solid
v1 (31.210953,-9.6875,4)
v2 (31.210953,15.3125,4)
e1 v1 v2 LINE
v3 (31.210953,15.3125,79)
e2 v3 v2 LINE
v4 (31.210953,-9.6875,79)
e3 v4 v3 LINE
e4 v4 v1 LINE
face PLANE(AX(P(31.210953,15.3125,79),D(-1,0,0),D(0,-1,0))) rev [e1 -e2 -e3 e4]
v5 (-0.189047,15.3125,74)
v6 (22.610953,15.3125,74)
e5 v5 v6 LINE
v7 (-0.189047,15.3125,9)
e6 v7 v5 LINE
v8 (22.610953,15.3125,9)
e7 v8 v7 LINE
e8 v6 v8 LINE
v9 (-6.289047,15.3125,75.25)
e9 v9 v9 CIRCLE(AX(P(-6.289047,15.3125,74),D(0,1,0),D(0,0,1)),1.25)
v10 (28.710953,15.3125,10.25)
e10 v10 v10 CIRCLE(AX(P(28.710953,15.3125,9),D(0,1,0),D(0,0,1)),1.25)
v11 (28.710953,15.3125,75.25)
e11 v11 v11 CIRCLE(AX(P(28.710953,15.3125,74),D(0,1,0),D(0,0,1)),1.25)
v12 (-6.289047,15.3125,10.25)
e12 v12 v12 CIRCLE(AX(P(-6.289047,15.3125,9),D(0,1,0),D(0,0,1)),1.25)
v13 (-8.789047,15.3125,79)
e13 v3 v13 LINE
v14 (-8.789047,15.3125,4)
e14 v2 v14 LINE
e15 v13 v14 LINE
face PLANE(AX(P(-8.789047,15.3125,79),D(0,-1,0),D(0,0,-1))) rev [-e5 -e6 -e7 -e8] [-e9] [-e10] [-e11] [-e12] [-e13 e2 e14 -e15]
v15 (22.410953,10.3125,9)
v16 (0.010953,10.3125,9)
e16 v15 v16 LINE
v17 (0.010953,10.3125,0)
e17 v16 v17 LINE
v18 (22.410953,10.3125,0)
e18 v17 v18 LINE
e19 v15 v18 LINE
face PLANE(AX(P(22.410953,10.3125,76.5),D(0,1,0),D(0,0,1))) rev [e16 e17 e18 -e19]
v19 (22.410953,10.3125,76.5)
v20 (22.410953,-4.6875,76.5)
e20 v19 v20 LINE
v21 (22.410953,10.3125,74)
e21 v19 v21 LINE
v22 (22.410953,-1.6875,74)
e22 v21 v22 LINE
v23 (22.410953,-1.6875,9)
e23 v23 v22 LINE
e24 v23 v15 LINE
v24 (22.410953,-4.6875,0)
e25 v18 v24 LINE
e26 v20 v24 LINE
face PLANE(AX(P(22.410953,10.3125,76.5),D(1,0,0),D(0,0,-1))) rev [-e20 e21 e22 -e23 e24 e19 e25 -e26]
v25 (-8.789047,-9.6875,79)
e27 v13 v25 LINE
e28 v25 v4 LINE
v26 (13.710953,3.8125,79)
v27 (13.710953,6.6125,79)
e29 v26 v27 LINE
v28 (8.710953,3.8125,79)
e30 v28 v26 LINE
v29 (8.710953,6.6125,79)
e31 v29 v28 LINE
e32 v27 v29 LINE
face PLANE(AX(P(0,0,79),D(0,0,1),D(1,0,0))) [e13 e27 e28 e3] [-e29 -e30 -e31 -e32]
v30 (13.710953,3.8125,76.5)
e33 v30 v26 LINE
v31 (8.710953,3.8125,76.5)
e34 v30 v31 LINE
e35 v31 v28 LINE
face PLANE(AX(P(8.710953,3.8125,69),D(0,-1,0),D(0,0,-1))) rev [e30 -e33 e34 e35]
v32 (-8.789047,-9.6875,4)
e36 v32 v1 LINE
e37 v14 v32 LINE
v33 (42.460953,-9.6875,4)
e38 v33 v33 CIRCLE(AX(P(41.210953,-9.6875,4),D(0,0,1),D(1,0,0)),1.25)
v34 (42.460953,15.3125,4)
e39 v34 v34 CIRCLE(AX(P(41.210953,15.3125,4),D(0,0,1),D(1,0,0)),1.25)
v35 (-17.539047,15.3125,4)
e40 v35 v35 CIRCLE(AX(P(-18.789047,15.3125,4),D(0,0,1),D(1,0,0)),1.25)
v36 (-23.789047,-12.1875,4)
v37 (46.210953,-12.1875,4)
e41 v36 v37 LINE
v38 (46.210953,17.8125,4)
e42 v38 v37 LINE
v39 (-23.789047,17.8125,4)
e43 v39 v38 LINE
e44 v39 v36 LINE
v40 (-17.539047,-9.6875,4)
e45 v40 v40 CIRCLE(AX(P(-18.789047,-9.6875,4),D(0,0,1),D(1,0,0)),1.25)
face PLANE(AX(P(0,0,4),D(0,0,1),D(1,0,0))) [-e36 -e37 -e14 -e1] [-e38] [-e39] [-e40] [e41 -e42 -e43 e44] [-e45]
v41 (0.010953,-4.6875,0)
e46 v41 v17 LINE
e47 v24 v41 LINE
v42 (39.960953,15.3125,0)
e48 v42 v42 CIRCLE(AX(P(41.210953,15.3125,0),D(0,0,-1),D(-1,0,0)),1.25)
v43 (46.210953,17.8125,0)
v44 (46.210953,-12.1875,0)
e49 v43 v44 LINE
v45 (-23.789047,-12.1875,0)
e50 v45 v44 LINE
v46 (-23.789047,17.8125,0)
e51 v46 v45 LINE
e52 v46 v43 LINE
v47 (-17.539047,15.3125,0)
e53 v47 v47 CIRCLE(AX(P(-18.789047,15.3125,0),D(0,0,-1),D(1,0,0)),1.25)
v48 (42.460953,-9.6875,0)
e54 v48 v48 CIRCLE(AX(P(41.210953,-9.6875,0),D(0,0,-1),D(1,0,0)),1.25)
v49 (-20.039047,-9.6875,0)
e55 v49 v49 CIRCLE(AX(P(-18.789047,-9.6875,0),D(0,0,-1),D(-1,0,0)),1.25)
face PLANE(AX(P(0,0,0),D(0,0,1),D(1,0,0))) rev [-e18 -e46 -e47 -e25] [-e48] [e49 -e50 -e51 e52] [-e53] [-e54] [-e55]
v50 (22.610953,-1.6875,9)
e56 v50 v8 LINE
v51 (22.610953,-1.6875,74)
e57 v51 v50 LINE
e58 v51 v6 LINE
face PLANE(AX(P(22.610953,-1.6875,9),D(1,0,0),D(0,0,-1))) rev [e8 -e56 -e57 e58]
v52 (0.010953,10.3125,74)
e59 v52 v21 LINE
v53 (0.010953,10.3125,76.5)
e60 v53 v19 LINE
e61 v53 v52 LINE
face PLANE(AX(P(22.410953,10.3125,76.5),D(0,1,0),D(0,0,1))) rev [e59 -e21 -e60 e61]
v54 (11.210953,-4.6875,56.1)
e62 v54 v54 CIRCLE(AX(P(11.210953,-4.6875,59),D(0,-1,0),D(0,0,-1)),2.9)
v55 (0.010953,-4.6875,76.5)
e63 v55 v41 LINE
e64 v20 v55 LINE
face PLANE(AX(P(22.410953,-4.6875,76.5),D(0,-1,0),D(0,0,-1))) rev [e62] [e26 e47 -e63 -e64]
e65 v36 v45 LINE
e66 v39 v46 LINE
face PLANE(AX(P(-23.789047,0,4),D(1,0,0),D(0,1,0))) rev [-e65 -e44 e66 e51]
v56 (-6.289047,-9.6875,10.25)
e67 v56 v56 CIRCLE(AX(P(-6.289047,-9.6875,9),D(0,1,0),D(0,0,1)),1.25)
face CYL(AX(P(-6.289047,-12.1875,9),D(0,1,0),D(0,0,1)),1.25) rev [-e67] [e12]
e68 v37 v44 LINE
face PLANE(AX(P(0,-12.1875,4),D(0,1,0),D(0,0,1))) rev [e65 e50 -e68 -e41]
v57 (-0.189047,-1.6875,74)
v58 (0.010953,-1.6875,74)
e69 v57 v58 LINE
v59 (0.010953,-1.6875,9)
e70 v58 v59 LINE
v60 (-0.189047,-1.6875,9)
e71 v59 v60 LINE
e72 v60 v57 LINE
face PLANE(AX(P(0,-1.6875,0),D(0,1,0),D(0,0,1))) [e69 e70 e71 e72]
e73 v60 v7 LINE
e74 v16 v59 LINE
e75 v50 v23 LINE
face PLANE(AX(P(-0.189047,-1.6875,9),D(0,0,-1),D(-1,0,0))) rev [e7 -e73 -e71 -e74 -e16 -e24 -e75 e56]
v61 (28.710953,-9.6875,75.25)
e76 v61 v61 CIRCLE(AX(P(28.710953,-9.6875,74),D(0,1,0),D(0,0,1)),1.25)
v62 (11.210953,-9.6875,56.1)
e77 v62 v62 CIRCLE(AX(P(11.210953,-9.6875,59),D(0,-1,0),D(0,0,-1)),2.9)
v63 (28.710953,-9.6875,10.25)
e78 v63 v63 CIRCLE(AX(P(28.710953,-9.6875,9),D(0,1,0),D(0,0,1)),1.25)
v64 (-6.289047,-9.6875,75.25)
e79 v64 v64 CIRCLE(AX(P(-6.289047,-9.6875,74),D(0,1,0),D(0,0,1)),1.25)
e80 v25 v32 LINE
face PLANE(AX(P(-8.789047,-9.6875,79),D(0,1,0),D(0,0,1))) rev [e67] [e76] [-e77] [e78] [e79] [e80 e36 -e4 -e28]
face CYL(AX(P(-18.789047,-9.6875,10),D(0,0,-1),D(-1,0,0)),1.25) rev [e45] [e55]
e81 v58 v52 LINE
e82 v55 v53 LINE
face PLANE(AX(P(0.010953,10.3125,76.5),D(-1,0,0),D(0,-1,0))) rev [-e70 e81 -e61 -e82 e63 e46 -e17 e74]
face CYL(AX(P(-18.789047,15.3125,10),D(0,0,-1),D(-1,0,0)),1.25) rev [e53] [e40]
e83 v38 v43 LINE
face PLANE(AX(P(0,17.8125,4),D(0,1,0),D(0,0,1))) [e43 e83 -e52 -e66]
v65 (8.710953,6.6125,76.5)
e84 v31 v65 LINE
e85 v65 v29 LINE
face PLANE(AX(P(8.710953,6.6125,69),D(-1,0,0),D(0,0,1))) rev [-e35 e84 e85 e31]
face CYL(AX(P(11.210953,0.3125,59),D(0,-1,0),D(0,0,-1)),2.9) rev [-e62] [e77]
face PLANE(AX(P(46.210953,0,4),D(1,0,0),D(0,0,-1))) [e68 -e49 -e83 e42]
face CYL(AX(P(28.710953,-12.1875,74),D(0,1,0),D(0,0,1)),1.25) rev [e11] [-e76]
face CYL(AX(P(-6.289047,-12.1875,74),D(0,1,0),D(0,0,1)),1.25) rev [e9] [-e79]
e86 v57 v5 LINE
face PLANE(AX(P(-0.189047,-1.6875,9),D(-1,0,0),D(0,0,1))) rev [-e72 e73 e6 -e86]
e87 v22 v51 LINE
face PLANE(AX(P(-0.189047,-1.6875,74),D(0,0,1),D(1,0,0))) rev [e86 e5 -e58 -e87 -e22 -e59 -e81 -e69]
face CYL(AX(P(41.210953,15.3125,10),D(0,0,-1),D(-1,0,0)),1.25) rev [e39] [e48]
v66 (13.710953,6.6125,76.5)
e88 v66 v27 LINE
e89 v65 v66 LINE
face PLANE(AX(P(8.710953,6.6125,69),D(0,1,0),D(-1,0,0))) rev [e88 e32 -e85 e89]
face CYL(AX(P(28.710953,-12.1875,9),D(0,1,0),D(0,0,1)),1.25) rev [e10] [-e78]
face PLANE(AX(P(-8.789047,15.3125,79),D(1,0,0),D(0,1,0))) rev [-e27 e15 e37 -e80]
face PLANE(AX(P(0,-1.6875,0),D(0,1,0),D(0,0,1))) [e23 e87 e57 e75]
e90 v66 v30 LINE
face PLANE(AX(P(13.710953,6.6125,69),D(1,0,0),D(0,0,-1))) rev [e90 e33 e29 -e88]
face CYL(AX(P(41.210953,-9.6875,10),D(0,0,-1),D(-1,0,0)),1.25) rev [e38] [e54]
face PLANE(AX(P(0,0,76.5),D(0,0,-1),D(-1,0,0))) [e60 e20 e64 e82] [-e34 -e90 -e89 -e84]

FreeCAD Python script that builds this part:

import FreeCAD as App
import Part
import Sketcher

V = App.Vector
Q = App.Units.Quantity

doc = App.newDocument("Part")
body = doc.addObject("PartDesign::Body", "Body")

# Sketch on XY plane
sketch1 = body.newObject("Sketcher::SketchObject", "Sketch")
sketch1.AttachmentSupport = (doc.getObject("XY_Plane"), [""])
sketch1.MapMode = "FlatFace"
sketch1.addGeometry([
    Part.LineSegment(V(-24, 18, 0), V(-24, -12, 0)),
    Part.LineSegment(V(-24, -12, 0), V(46, -12, 0)),
    Part.LineSegment(V(46, -12, 0), V(46, 18, 0)),
    Part.LineSegment(V(46, 18, 0), V(-24, 18, 0)),
], False)
sketch1.addConstraint([
    Sketcher.Constraint("Coincident", 0, 2, 1, 1),
    Sketcher.Constraint("Coincident", 1, 2, 2, 1),
    Sketcher.Constraint("Coincident", 2, 2, 3, 1),
    Sketcher.Constraint("Coincident", 3, 2, 0, 1),
    Sketcher.Constraint("Vertical", 0),
    Sketcher.Constraint("Horizontal", 1),
    Sketcher.Constraint("Vertical", 2),
    Sketcher.Constraint("Horizontal", 3),
    Sketcher.Constraint("DistanceX", 1, 1, 1, 2, Q("70 mm")),
    Sketcher.Constraint("DistanceY", 0, 2, 0, 1, Q("30 mm")),
    Sketcher.Constraint("DistanceY", 0, 2, -1, 1, Q("12.1875 mm")),
    Sketcher.Constraint("DistanceX", 0, 2, -1, 1, Q("23.789047 mm")),
])
pad1 = body.newObject("PartDesign::Pad", "Pad")
pad1.Profile = sketch1
pad1.Length = 4

# Sketch on XY plane
sketch2 = body.newObject("Sketcher::SketchObject", "Sketch001")
sketch2.AttachmentSupport = (doc.getObject("XY_Plane"), [""])
sketch2.MapMode = "FlatFace"
sketch2.AttachmentOffset = App.Placement(V(0, 0, 4), App.Rotation())
sketch2.addGeometry([
    Part.LineSegment(V(-9, 15, 0), V(-9, -10, 0)),
    Part.LineSegment(V(-9, -10, 0), V(31, -10, 0)),
    Part.LineSegment(V(31, -10, 0), V(31, 15, 0)),
    Part.LineSegment(V(31, 15, 0), V(-9, 15, 0)),
], False)
sketch2.addConstraint([
    Sketcher.Constraint("Coincident", 0, 2, 1, 1),
    Sketcher.Constraint("Coincident", 1, 2, 2, 1),
    Sketcher.Constraint("Coincident", 2, 2, 3, 1),
    Sketcher.Constraint("Coincident", 3, 2, 0, 1),
    Sketcher.Constraint("Vertical", 0),
    Sketcher.Constraint("Horizontal", 1),
    Sketcher.Constraint("Vertical", 2),
    Sketcher.Constraint("Horizontal", 3),
    Sketcher.Constraint("DistanceX", 1, 1, 1, 2, Q("40 mm")),
    Sketcher.Constraint("DistanceY", 0, 2, 0, 1, Q("25 mm")),
    Sketcher.Constraint("DistanceY", 0, 2, -1, 1, Q("9.6875 mm")),
    Sketcher.Constraint("DistanceX", 0, 2, -1, 1, Q("8.789047 mm")),
])
pad2 = body.newObject("PartDesign::Pad", "Pad001")
pad2.Profile = sketch2
pad2.Length = 75

# Sketch on XY plane
sketch3 = body.newObject("Sketcher::SketchObject", "Sketch002")
sketch3.AttachmentSupport = (doc.getObject("XY_Plane"), [""])
sketch3.MapMode = "FlatFace"
sketch3.addGeometry([
    Part.LineSegment(V(22, 10, 0), V(22, -5, 0)),
    Part.LineSegment(V(22, -5, 0), V(0, -5, 0)),
    Part.LineSegment(V(0, -5, 0), V(0, 10, 0)),
    Part.LineSegment(V(0, 10, 0), V(22, 10, 0)),
], False)
sketch3.addConstraint([
    Sketcher.Constraint("Coincident", 0, 2, 1, 1),
    Sketcher.Constraint("Coincident", 1, 2, 2, 1),
    Sketcher.Constraint("Coincident", 2, 2, 3, 1),
    Sketcher.Constraint("Coincident", 3, 2, 0, 1),
    Sketcher.Constraint("Vertical", 0),
    Sketcher.Constraint("Horizontal", 1),
    Sketcher.Constraint("Vertical", 2),
    Sketcher.Constraint("Horizontal", 3),
    Sketcher.Constraint("DistanceY", 0, 2, 0, 1, Q("15 mm")),
    Sketcher.Constraint("DistanceX", 1, 2, 1, 1, Q("22.4 mm")),
    Sketcher.Constraint("DistanceY", 0, 2, -1, 1, Q("4.6875 mm")),
    Sketcher.Constraint("DistanceX", -1, 1, 0, 2, Q("22.410953 mm")),
])
pocket1 = body.newObject("PartDesign::Pocket", "Pocket")
pocket1.Profile = sketch3
pocket1.Length = 76.5
pocket1.Reversed = True

# Sketch on XZ plane
sketch4 = body.newObject("Sketcher::SketchObject", "Sketch003")
sketch4.AttachmentSupport = (doc.getObject("XZ_Plane"), [""])
sketch4.MapMode = "FlatFace"
sketch4.AttachmentOffset = App.Placement(V(0, 0, -15.3125), App.Rotation())
sketch4.addGeometry([
    Part.LineSegment(V(0, 9, 0), V(0, 74, 0)),
    Part.LineSegment(V(0, 74, 0), V(23, 74, 0)),
    Part.LineSegment(V(23, 74, 0), V(23, 9, 0)),
    Part.LineSegment(V(23, 9, 0), V(0, 9, 0)),
], False)
sketch4.addConstraint([
    Sketcher.Constraint("Coincident", 0, 2, 1, 1),
    Sketcher.Constraint("Coincident", 1, 2, 2, 1),
    Sketcher.Constraint("Coincident", 2, 2, 3, 1),
    Sketcher.Constraint("Coincident", 3, 2, 0, 1),
    Sketcher.Constraint("Vertical", 0),
    Sketcher.Constraint("Horizontal", 1),
    Sketcher.Constraint("Vertical", 2),
    Sketcher.Constraint("Horizontal", 3),
    Sketcher.Constraint("DistanceY", 0, 1, 0, 2, Q("65 mm")),
    Sketcher.Constraint("DistanceX", 1, 1, 1, 2, Q("22.8 mm")),
    Sketcher.Constraint("DistanceY", -1, 1, 0, 2, Q("74 mm")),
    Sketcher.Constraint("DistanceX", 0, 2, -1, 1, Q("0.189047 mm")),
])
pocket2 = body.newObject("PartDesign::Pocket", "Pocket001")
pocket2.Profile = sketch4
pocket2.Length = 17
pocket2.Reversed = True

# Sketch on XZ plane
sketch5 = body.newObject("Sketcher::SketchObject", "Sketch004")
sketch5.AttachmentSupport = (doc.getObject("XZ_Plane"), [""])
sketch5.MapMode = "FlatFace"
sketch5.AttachmentOffset = App.Placement(V(0, 0, -15.3125), App.Rotation())
sketch5.addGeometry([
    Part.Circle(V(-6.3, 9, 0), V(0, 0, 1), 1.2),
    Part.Circle(V(28.7, 9, 0), V(0, 0, 1), 1.2),
    Part.Circle(V(-6.3, 74, 0), V(0, 0, 1), 1.2),
    Part.Circle(V(28.7, 74, 0), V(0, 0, 1), 1.2),
], False)
sketch5.addConstraint([
    Sketcher.Constraint("Equal", 0, 1),
    Sketcher.Constraint("Equal", 1, 2),
    Sketcher.Constraint("Equal", 2, 3),
    Sketcher.Constraint("Horizontal", 0, 3, 1, 3),
    Sketcher.Constraint("Horizontal", 2, 3, 3, 3),
    Sketcher.Constraint("Vertical", 0, 3, 2, 3),
    Sketcher.Constraint("Vertical", 1, 3, 3, 3),
    Sketcher.Constraint("Diameter", 0, Q("2.5 mm")),
    Sketcher.Constraint("DistanceY", -1, 1, 0, 3, Q("9 mm")),
    Sketcher.Constraint("DistanceY", -1, 1, 2, 3, Q("74 mm")),
    Sketcher.Constraint("DistanceX", 0, 3, 1, 3, Q("35 mm")),
    Sketcher.Constraint("DistanceX", 0, 3, -1, 1, Q("6.289047 mm")),
])
pocket3 = body.newObject("PartDesign::Pocket", "Pocket002")
pocket3.Profile = sketch5
pocket3.Type = "ThroughAll"
pocket3.Reversed = True

# Sketch on XZ plane
sketch6 = body.newObject("Sketcher::SketchObject", "Sketch005")
sketch6.AttachmentSupport = (doc.getObject("XZ_Plane"), [""])
sketch6.MapMode = "FlatFace"
sketch6.AttachmentOffset = App.Placement(V(0, 0, 9.6875), App.Rotation())
sketch6.addGeometry(Part.Circle(V(11.2, 59, 0), V(0, 0, 1), 2.9), False)
sketch6.addConstraint([
    Sketcher.Constraint("Diameter", 0, Q("5.8 mm")),
    Sketcher.Constraint("DistanceY", -1, 1, 0, 3, Q("59 mm")),
    Sketcher.Constraint("DistanceX", -1, 1, 0, 3, Q("11.210953 mm")),
])
pocket4 = body.newObject("PartDesign::Pocket", "Pocket003")
pocket4.Profile = sketch6
pocket4.Length = 10

# Sketch on XY plane
sketch7 = body.newObject("Sketcher::SketchObject", "Sketch006")
sketch7.AttachmentSupport = (doc.getObject("XY_Plane"), [""])
sketch7.MapMode = "FlatFace"
sketch7.AttachmentOffset = App.Placement(V(0, 0, 79), App.Rotation())
sketch7.addGeometry([
    Part.LineSegment(V(8.7, 6.6, 0), V(8.7, 3.8, 0)),
    Part.LineSegment(V(8.7, 3.8, 0), V(13.7, 3.8, 0)),
    Part.LineSegment(V(13.7, 3.8, 0), V(13.7, 6.6, 0)),
    Part.LineSegment(V(13.7, 6.6, 0), V(8.7, 6.6, 0)),
], False)
sketch7.addConstraint([
    Sketcher.Constraint("Coincident", 0, 2, 1, 1),
    Sketcher.Constraint("Coincident", 1, 2, 2, 1),
    Sketcher.Constraint("Coincident", 2, 2, 3, 1),
    Sketcher.Constraint("Coincident", 3, 2, 0, 1),
    Sketcher.Constraint("Vertical", 0),
    Sketcher.Constraint("Horizontal", 1),
    Sketcher.Constraint("Vertical", 2),
    Sketcher.Constraint("Horizontal", 3),
    Sketcher.Constraint("DistanceX", 1, 1, 1, 2, Q("5 mm")),
    Sketcher.Constraint("DistanceY", 0, 2, 0, 1, Q("2.8 mm")),
    Sketcher.Constraint("DistanceY", -1, 1, 0, 2, Q("3.8125 mm")),
    Sketcher.Constraint("DistanceX", -1, 1, 0, 2, Q("8.710953 mm")),
])
pocket5 = body.newObject("PartDesign::Pocket", "Pocket004")
pocket5.Profile = sketch7
pocket5.Length = 10

# Sketch on XY plane
sketch8 = body.newObject("Sketcher::SketchObject", "Sketch007")
sketch8.AttachmentSupport = (doc.getObject("XY_Plane"), [""])
sketch8.MapMode = "FlatFace"
sketch8.addGeometry([
    Part.Circle(V(41.2, 15.3, 0), V(0, 0, 1), 1.2),
    Part.Circle(V(-18.8, 15.3, 0), V(0, 0, 1), 1.2),
    Part.Circle(V(-18.8, -9.7, 0), V(0, 0, 1), 1.2),
    Part.Circle(V(41.2, -9.7, 0), V(0, 0, 1), 1.2),
], False)
sketch8.addConstraint([
    Sketcher.Constraint("Equal", 0, 1),
    Sketcher.Constraint("Equal", 1, 2),
    Sketcher.Constraint("Equal", 2, 3),
    Sketcher.Constraint("Horizontal", 0, 3, 1, 3),
    Sketcher.Constraint("Horizontal", 2, 3, 3, 3),
    Sketcher.Constraint("Vertical", 1, 3, 2, 3),
    Sketcher.Constraint("Vertical", 0, 3, 3, 3),
    Sketcher.Constraint("Diameter", 0, Q("2.5 mm")),
    Sketcher.Constraint("DistanceX", 1, 3, 0, 3, Q("60 mm")),
    Sketcher.Constraint("DistanceY", 2, 3, 1, 3, Q("25 mm")),
    Sketcher.Constraint("DistanceY", -1, 1, 0, 3, Q("15.3125 mm")),
    Sketcher.Constraint("DistanceX", -1, 1, 0, 3, Q("41.210953 mm")),
])
pocket6 = body.newObject("PartDesign::Pocket", "Pocket005")
pocket6.Profile = sketch8
pocket6.Length = 10
pocket6.Reversed = True

doc.recompute()
